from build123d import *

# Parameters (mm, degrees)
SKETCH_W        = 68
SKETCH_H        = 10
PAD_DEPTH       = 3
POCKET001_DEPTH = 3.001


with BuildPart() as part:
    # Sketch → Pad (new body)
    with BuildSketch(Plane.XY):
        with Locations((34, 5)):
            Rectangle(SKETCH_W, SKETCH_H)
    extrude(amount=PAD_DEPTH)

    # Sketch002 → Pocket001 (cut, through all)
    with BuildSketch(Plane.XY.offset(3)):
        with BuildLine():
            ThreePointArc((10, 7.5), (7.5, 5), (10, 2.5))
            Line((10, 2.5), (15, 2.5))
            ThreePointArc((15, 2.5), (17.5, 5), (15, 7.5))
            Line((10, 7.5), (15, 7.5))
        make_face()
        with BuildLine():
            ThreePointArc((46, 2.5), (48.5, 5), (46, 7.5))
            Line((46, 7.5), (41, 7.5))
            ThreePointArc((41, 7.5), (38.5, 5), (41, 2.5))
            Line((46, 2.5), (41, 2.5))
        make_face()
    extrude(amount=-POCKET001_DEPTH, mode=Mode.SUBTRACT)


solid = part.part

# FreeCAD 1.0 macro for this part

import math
import FreeCAD as App
import Part
import Sketcher


def add_polygon(sketch, points):
    """Adds a closed chain of lines whose ends are joined by coincident constraints."""
    first, n = sketch.GeometryCount, len(points)
    for a, b in zip(points, points[1:] + points[:1]):
        sketch.addGeometry(Part.LineSegment(App.Vector(*a, 0), App.Vector(*b, 0)), False)
    for i in range(n):
        sketch.addConstraint(Sketcher.Constraint("Coincident", first + i, 2, first + (i + 1) % n, 1))

doc = App.newDocument("Part")
body = doc.addObject("PartDesign::Body", "Body")

sketch1 = body.newObject("Sketcher::SketchObject", "Sketch")
sketch1.AttachmentSupport = (doc.getObject("XY_Plane"), [""])
sketch1.MapMode = "FlatFace"
add_polygon(sketch1, [(0, 10), (0, 0), (68, 0), (68, 10)])
sketch1.addConstraint([
    Sketcher.Constraint("Vertical", 0),
    Sketcher.Constraint("Horizontal", 1),
    Sketcher.Constraint("Vertical", 2),
    Sketcher.Constraint("Horizontal", 3),
    Sketcher.Constraint("Coincident", 0, 2, -1, 1),
    Sketcher.Constraint("DistanceX", 1, 1, 1, 2, 68.0),
    Sketcher.Constraint("DistanceY", 0, 2, 0, 1, 10.0),
])
pad1 = body.newObject("PartDesign::Pad", "Pad")
pad1.Profile = sketch1
pad1.Length = 3

sketch2 = body.newObject("Sketcher::SketchObject", "Sketch001")
sketch2.AttachmentSupport = (doc.getObject("XY_Plane"), [""])
sketch2.MapMode = "FlatFace"
sketch2.AttachmentOffset = App.Placement(App.Vector(0, 0, 3), App.Rotation())
sketch2.addGeometry([
    Part.ArcOfCircle(Part.Circle(App.Vector(10, 5, 0), App.Vector(0, 0, 1), 2.5), math.radians(90), math.radians(270)),
    Part.LineSegment(App.Vector(10, 2.5, 0), App.Vector(15, 2.5, 0)),
    Part.ArcOfCircle(Part.Circle(App.Vector(15, 5, 0), App.Vector(0, 0, 1), 2.5), math.radians(-90), math.radians(90)),
    Part.LineSegment(App.Vector(15, 7.5, 0), App.Vector(10, 7.5, 0)),
    Part.ArcOfCircle(Part.Circle(App.Vector(46, 5, 0), App.Vector(0, 0, 1), 2.5), math.radians(-90), math.radians(90)),
    Part.LineSegment(App.Vector(46, 7.5, 0), App.Vector(41, 7.5, 0)),
    Part.ArcOfCircle(Part.Circle(App.Vector(41, 5, 0), App.Vector(0, 0, 1), 2.5), math.radians(90), math.radians(270)),
    Part.LineSegment(App.Vector(41, 2.5, 0), App.Vector(46, 2.5, 0)),
], False)
sketch2.addConstraint([
    Sketcher.Constraint("Tangent", 0, 2, 1, 1),
    Sketcher.Constraint("Tangent", 1, 2, 2, 1),
    Sketcher.Constraint("Tangent", 2, 2, 3, 1),
    Sketcher.Constraint("Tangent", 3, 2, 0, 1),
    Sketcher.Constraint("Tangent", 4, 2, 5, 1),
    Sketcher.Constraint("Tangent", 5, 2, 6, 1),
    Sketcher.Constraint("Tangent", 6, 2, 7, 1),
    Sketcher.Constraint("Tangent", 7, 2, 4, 1),
    Sketcher.Constraint("Horizontal", 1),
    Sketcher.Constraint("Horizontal", 3),
    Sketcher.Constraint("Horizontal", 5),
    Sketcher.Constraint("Horizontal", 7),
    Sketcher.Constraint("Equal", 2, 4),
    Sketcher.Constraint("Horizontal", 2, 3, 4, 3),
    Sketcher.Constraint("Equal", 3, 5),
    Sketcher.Constraint("Radius", 0, 2.5),
    Sketcher.Constraint("DistanceX", 1, 1, 1, 2, 5.0),
    Sketcher.Constraint("DistanceX", -1, 1, 0, 3, 10.0),
    Sketcher.Constraint("DistanceY", -1, 1, 0, 3, 5.0),
    Sketcher.Constraint("DistanceX", -1, 1, 4, 3, 46.0),
])
pocket1 = body.newObject("PartDesign::Pocket", "Pocket")
pocket1.Profile = sketch2
pocket1.Type = "ThroughAll"

doc.recompute()
